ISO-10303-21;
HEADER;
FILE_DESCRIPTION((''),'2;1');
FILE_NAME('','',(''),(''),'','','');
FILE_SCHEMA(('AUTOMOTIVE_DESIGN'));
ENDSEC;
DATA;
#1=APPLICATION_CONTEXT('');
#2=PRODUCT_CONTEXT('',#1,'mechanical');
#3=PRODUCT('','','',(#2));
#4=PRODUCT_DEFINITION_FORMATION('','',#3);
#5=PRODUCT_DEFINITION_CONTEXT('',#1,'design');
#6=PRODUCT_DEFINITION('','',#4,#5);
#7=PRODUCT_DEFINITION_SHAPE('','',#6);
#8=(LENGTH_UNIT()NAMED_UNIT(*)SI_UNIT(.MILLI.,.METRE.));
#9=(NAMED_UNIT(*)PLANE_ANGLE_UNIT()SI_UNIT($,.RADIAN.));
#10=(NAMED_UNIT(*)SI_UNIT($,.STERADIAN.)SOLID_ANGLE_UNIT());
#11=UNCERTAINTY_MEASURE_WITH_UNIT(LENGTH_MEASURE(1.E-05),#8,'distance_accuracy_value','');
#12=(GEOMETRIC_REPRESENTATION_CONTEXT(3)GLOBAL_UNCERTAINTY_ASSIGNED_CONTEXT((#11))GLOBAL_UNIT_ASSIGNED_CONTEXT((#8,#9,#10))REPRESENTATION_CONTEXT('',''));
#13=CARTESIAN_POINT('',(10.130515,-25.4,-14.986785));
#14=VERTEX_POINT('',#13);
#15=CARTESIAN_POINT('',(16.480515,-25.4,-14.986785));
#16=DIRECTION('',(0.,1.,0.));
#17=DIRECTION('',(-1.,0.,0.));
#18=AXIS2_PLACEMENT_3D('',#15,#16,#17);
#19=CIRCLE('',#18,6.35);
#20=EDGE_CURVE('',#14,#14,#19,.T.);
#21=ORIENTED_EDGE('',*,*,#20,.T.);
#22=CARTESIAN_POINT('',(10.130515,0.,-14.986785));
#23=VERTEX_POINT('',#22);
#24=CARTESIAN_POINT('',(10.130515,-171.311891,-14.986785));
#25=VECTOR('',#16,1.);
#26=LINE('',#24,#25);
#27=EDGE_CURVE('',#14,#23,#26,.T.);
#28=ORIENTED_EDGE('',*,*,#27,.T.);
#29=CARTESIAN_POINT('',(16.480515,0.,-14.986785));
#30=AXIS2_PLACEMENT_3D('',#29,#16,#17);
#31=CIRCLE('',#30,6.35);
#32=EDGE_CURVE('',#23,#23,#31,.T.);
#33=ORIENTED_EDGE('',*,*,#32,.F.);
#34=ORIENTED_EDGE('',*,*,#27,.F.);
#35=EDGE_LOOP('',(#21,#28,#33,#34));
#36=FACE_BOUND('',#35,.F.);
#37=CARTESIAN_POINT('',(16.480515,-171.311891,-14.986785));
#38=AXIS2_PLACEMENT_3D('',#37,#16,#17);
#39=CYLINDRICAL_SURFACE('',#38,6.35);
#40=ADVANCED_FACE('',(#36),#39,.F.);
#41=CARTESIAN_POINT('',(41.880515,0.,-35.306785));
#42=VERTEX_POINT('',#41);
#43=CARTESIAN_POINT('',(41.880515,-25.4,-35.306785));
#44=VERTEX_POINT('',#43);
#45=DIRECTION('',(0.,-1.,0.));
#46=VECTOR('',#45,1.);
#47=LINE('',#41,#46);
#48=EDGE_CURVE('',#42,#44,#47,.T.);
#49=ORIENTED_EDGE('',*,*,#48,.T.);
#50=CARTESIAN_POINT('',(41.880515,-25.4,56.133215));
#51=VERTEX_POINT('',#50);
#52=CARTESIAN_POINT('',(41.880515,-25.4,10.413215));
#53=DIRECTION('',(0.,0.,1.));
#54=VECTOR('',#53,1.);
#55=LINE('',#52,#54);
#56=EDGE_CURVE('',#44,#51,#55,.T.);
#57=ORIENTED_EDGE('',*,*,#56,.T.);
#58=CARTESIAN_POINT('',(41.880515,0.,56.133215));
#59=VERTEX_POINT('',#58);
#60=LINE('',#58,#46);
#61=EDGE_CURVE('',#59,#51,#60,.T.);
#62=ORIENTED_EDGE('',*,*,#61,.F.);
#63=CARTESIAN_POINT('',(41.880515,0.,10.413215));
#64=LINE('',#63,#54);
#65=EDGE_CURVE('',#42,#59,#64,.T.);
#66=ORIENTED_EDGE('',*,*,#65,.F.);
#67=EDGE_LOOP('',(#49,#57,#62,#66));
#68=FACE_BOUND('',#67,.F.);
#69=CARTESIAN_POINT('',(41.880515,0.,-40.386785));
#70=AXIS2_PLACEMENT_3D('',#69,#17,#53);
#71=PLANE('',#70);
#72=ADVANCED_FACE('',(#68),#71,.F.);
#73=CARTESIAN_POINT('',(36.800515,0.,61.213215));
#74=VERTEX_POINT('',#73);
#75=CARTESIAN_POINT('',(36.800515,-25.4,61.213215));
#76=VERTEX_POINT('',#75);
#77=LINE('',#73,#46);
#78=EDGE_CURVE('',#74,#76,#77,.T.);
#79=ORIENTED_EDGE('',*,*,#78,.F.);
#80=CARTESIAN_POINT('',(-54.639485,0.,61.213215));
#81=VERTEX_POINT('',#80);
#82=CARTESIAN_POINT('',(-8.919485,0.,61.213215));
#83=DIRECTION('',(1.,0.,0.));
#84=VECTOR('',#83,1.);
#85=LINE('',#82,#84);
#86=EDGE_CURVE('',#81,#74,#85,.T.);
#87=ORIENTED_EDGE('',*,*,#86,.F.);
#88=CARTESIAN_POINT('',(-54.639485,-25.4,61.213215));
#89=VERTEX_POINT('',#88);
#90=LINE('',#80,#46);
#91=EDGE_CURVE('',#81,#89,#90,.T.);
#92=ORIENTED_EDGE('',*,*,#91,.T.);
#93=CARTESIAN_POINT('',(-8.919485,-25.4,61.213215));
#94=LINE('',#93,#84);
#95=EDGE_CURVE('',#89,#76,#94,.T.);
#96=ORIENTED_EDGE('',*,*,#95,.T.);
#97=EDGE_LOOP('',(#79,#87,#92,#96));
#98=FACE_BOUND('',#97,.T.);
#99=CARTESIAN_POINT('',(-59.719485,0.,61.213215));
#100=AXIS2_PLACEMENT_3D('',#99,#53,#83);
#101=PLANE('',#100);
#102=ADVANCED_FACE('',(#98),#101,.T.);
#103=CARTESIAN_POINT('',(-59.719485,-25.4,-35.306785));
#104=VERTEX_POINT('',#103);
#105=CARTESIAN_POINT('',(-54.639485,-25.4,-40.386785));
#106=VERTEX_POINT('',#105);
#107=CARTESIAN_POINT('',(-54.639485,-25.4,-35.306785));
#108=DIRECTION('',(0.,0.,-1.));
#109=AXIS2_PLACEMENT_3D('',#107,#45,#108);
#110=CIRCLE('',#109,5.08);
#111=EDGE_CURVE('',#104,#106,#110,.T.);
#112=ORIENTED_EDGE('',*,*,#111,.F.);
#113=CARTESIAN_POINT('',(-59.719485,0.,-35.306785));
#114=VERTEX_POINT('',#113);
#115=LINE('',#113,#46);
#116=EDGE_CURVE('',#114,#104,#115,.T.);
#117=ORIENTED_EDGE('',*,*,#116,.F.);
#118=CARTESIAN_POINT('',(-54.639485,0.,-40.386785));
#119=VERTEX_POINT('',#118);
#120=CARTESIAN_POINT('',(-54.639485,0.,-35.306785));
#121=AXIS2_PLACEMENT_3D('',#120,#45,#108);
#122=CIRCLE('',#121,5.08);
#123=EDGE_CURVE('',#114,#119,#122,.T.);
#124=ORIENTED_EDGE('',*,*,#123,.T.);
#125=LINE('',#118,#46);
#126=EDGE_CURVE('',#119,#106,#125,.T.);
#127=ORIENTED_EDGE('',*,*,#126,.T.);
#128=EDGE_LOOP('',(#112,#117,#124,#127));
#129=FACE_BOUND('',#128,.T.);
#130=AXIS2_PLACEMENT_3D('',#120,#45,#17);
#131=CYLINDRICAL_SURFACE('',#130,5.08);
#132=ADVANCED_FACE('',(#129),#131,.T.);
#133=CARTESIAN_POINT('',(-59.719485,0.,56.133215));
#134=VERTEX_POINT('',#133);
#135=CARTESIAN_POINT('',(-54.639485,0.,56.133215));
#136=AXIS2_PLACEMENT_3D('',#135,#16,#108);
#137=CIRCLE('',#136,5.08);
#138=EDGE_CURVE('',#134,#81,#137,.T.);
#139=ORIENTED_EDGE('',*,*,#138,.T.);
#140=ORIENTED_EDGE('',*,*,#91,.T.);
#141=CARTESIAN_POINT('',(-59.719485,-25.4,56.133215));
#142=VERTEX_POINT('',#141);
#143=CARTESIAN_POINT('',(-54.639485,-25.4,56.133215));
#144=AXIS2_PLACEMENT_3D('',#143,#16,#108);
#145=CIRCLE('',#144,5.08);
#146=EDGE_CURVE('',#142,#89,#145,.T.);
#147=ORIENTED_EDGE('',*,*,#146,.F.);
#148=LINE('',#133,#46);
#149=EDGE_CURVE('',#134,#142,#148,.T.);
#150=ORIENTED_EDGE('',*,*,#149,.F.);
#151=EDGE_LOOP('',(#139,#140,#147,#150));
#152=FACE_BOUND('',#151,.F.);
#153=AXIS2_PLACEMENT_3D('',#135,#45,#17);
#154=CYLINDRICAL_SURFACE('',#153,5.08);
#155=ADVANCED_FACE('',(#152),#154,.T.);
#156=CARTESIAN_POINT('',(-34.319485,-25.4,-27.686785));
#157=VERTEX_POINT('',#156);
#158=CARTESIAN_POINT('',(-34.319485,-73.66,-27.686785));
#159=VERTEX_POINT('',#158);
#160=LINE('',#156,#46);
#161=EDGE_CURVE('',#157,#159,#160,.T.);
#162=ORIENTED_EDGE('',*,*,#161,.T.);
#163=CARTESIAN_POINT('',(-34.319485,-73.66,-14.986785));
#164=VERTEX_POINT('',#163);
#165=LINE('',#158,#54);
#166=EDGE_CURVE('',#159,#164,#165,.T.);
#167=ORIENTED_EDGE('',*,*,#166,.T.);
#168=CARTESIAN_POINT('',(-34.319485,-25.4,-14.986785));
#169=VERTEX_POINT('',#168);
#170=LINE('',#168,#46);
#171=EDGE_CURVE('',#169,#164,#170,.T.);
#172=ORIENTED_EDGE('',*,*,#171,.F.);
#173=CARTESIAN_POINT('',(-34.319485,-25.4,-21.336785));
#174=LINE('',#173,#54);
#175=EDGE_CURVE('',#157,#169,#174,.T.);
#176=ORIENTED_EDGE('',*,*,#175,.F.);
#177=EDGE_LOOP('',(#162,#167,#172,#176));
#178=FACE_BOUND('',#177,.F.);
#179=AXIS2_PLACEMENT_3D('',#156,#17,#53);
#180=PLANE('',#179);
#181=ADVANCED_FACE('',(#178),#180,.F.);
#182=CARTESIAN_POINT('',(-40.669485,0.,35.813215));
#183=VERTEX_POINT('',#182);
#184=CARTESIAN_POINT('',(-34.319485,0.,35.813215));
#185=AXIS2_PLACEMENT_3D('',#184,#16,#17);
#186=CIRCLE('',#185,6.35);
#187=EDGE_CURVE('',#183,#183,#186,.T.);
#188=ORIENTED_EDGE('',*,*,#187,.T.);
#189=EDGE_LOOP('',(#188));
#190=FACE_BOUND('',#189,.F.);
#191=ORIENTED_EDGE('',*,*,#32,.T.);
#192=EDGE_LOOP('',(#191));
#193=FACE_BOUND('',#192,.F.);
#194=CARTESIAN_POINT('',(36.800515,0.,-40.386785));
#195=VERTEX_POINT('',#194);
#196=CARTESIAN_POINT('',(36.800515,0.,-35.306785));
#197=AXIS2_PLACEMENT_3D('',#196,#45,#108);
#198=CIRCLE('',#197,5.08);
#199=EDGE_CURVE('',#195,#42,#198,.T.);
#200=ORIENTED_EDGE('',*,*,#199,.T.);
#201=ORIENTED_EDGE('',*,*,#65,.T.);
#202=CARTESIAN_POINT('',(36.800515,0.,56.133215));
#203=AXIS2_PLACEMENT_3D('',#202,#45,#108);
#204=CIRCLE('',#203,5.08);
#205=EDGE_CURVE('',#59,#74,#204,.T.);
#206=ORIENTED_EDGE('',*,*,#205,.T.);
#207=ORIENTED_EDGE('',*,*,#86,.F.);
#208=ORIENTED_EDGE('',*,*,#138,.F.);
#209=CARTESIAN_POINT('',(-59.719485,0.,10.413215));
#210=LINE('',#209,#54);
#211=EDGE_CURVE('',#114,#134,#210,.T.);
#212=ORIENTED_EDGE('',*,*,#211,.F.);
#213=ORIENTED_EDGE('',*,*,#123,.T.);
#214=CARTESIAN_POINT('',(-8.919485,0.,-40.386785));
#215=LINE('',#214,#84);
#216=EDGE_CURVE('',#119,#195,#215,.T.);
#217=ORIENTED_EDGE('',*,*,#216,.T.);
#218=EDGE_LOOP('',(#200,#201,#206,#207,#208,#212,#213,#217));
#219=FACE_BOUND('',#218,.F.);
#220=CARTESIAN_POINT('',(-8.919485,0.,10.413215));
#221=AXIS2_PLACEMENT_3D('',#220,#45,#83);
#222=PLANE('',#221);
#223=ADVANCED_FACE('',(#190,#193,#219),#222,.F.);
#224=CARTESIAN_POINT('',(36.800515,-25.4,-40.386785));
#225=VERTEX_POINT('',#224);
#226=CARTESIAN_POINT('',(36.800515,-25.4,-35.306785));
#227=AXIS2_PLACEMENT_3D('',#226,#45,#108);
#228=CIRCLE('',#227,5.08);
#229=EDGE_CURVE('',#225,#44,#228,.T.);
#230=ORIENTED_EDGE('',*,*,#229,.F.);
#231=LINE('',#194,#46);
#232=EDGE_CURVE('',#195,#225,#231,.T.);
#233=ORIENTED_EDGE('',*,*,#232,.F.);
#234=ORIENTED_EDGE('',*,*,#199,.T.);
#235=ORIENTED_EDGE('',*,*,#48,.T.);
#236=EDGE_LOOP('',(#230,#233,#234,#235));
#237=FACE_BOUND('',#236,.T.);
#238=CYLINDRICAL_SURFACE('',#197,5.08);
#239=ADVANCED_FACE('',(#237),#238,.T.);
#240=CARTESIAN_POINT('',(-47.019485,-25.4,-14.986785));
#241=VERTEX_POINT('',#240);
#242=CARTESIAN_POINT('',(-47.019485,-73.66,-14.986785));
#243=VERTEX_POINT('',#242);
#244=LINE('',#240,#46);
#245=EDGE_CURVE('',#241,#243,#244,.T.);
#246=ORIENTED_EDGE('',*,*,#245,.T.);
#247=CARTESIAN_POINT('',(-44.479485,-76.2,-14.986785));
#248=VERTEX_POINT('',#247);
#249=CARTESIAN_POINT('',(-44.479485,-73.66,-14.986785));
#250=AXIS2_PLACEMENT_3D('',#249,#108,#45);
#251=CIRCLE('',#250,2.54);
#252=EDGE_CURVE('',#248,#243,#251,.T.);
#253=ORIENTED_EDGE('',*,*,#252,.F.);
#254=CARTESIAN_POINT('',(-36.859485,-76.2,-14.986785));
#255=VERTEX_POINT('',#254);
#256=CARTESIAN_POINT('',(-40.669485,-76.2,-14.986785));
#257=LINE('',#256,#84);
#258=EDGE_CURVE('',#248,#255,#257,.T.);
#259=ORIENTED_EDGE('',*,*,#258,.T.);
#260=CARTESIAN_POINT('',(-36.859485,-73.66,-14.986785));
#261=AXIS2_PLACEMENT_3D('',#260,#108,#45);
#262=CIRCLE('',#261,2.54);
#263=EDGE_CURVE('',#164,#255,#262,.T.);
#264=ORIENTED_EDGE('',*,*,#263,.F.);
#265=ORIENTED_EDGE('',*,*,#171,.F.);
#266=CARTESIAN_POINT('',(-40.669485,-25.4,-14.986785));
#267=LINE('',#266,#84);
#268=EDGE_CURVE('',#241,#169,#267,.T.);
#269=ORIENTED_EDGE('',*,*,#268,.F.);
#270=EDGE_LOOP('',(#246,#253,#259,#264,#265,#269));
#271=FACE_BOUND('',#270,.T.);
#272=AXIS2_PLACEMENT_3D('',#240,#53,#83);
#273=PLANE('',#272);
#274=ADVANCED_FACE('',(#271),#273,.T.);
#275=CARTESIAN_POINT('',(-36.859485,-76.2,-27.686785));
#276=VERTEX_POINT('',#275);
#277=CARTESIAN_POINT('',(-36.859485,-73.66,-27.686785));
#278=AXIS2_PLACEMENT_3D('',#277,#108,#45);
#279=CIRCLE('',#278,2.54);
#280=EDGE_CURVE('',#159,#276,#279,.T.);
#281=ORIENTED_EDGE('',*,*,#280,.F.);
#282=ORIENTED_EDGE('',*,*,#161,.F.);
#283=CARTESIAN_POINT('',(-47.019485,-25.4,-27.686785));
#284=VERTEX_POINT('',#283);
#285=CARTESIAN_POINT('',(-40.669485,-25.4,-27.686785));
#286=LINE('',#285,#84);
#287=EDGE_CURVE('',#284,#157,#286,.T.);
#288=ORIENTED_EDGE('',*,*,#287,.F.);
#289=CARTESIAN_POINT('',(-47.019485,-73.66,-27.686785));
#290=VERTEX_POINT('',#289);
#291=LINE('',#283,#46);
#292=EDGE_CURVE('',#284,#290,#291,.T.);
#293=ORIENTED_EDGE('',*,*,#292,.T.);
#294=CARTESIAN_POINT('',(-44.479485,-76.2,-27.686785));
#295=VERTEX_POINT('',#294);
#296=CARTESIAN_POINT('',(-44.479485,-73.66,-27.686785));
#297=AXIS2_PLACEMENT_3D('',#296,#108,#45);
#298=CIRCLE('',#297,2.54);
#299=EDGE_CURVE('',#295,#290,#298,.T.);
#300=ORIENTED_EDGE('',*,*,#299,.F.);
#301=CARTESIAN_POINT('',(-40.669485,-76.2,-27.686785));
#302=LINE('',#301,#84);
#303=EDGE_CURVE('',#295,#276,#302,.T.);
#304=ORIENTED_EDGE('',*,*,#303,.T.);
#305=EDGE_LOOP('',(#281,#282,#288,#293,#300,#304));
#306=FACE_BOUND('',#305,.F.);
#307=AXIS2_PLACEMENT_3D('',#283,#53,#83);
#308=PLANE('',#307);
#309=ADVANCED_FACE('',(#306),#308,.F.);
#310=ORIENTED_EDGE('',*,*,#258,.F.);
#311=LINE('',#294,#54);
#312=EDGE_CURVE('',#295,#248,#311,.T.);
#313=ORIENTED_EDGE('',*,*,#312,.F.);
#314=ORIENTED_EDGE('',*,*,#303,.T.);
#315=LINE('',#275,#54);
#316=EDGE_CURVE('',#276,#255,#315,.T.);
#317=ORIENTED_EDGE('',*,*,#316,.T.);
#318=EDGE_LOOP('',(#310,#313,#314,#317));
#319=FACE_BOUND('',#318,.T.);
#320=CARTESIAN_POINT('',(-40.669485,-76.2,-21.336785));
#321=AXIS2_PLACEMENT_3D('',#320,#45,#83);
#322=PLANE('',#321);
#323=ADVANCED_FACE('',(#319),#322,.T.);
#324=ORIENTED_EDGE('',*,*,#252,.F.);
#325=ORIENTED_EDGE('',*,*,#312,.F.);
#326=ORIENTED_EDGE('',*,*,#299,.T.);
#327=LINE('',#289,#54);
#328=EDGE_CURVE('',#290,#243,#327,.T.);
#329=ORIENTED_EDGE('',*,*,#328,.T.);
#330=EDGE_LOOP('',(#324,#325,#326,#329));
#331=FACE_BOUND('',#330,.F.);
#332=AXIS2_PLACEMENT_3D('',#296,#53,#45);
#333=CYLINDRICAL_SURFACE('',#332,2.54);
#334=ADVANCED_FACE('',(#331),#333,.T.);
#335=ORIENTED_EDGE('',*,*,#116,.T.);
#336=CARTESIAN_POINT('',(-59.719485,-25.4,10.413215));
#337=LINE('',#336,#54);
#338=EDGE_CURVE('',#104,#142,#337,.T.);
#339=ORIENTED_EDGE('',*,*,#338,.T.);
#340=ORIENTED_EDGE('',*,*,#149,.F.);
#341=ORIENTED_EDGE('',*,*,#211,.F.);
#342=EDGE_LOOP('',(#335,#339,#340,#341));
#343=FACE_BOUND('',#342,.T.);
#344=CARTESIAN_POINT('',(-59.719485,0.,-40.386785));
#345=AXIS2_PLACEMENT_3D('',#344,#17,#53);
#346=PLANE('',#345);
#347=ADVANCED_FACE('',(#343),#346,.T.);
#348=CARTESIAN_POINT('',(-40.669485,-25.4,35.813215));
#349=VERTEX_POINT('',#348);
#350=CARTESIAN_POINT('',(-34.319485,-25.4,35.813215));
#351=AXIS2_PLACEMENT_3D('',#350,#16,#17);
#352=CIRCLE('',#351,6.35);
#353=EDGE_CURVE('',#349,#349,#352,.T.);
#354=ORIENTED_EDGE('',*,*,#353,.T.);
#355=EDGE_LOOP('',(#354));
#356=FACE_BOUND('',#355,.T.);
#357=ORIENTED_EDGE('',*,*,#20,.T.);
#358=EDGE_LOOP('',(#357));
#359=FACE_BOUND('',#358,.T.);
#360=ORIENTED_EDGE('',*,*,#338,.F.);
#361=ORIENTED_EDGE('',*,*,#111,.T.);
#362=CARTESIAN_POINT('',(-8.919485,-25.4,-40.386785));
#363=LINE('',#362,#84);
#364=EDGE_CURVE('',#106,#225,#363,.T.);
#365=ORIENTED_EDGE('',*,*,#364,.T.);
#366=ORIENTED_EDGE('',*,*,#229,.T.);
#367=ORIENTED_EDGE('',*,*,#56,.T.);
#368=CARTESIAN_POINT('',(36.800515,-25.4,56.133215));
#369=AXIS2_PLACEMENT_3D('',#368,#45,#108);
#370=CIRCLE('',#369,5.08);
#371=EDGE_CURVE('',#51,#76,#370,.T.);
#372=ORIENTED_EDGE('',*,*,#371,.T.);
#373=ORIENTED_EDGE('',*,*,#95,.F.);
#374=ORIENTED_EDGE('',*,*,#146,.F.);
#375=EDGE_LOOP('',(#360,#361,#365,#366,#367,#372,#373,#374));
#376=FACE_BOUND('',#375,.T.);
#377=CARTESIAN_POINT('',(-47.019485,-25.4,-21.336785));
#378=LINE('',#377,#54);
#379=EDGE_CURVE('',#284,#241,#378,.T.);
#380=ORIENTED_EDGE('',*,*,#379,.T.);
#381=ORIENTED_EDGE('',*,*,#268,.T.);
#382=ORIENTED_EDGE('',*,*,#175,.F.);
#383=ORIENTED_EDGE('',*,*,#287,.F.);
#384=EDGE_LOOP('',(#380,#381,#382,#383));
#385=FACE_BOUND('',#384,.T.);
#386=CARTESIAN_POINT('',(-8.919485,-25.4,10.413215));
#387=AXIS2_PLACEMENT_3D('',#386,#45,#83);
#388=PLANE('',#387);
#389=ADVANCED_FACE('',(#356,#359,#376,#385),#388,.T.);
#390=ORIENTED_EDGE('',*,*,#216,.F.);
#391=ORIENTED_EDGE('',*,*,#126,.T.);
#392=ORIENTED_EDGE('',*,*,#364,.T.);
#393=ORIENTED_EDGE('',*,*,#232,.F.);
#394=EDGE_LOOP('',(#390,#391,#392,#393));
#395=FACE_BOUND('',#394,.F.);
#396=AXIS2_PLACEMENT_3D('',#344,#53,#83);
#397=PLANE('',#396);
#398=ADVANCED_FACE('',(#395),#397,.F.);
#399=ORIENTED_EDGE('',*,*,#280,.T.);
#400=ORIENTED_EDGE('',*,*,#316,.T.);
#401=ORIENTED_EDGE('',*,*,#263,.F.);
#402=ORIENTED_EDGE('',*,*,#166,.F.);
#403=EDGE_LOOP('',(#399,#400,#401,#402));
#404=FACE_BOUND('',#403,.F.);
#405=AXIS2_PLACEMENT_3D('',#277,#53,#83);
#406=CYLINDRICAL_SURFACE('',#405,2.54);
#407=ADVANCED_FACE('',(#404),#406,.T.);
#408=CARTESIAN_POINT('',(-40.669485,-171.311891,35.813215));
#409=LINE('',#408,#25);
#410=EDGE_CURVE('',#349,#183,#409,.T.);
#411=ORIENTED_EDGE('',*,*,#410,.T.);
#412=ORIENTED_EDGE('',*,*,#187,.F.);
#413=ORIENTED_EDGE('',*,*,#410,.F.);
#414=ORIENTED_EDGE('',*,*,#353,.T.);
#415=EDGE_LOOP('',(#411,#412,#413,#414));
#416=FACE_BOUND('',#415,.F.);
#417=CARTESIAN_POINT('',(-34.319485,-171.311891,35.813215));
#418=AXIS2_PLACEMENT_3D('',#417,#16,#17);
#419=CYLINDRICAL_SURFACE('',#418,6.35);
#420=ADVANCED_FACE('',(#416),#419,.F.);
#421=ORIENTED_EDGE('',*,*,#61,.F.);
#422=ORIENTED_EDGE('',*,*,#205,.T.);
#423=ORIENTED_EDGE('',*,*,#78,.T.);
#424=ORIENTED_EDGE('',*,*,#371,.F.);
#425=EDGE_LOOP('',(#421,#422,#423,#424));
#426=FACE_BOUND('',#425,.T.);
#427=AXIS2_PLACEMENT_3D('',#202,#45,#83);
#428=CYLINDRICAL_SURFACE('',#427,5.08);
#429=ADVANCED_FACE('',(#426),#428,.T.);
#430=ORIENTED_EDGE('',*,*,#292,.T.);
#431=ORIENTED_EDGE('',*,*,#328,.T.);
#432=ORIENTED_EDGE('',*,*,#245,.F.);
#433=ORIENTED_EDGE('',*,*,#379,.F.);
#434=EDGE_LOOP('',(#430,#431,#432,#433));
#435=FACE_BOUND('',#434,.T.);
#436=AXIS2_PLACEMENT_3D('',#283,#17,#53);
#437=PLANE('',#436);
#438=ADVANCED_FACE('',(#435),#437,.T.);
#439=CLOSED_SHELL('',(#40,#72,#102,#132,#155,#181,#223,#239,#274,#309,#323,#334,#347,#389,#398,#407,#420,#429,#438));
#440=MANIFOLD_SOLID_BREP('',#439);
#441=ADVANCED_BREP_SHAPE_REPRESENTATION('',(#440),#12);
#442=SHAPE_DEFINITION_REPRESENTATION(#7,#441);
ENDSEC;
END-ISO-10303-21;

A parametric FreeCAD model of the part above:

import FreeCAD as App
import Part
import Sketcher
Q = App.Units.Quantity


def edges_at(feature, points):
    """Names of the edges that pass closest to the given points."""
    edges = feature.Shape.Edges
    near = lambda p: min(range(len(edges)), key=lambda i: edges[i].distToShape(Part.Vertex(*p))[0])
    return sorted({f"Edge{near(p) + 1}" for p in points})


def add_polygon(sketch, points):
    """Adds a closed chain of lines whose ends are joined by coincident constraints."""
    first, n = sketch.GeometryCount, len(points)
    for a, b in zip(points, points[1:] + points[:1]):
        sketch.addGeometry(Part.LineSegment(App.Vector(*a, 0), App.Vector(*b, 0)), False)
    for i in range(n):
        sketch.addConstraint(Sketcher.Constraint("Coincident", first + i, 2, first + (i + 1) % n, 1))

doc = App.newDocument("Part")
body = doc.addObject("PartDesign::Body", "Body")

sketch1 = body.newObject("Sketcher::SketchObject", "Sketch")
sketch1.AttachmentSupport = (doc.getObject("XZ_Plane"), [""])
sketch1.MapMode = "FlatFace"
add_polygon(sketch1, [(-59.719485, 61.213215), (-59.719485, -40.386785), (41.880515, -40.386785), (41.880515, 61.213215)])
sketch1.addConstraint([
    Sketcher.Constraint("Vertical", 0),
    Sketcher.Constraint("Horizontal", 1),
    Sketcher.Constraint("Vertical", 2),
    Sketcher.Constraint("Horizontal", 3),
    Sketcher.Constraint("Equal", 3, 0),
    Sketcher.Constraint("DistanceX", 1, 1, 1, 2, Q("4 in")),
    Sketcher.Constraint("DistanceX", 0, 2, -1, 1, 59.719485),
    Sketcher.Constraint("DistanceY", 0, 2, -1, 1, 40.386785),
])
pad1 = body.newObject("PartDesign::Pad", "Pad")
pad1.Profile = sketch1
pad1.Length = Q("1 in")
doc.recompute()

fillet = body.newObject("PartDesign::Fillet", "Fillet")
fillet.Base = (pad1, edges_at(pad1, [(-59.719, -12.7, 61.213)]))
fillet.Radius = Q("0.2 in")
doc.recompute()

fillet2 = body.newObject("PartDesign::Fillet", "Fillet001")
fillet2.Base = (fillet, edges_at(fillet, [(-59.719, -12.7, -40.387)]))
fillet2.Radius = Q("0.2 in")
doc.recompute()

fillet3 = body.newObject("PartDesign::Fillet", "Fillet002")
fillet3.Base = (fillet2, edges_at(fillet2, [(41.881, -12.7, -40.387)]))
fillet3.Radius = Q("0.2 in")
doc.recompute()

fillet4 = body.newObject("PartDesign::Fillet", "Fillet003")
fillet4.Base = (fillet3, edges_at(fillet3, [(41.881, -12.7, 61.213)]))
fillet4.Radius = Q("0.2 in")

sketch2 = body.newObject("Sketcher::SketchObject", "Sketch001")
sketch2.AttachmentSupport = (doc.getObject("XZ_Plane"), [""])
sketch2.MapMode = "FlatFace"
sketch2.AttachmentOffset = App.Placement(App.Vector(0, 0, 1 * 25.4), App.Rotation())
sketch2.addGeometry([
    Part.Circle(App.Vector(-34.319485, 35.813215, 0), App.Vector(0, 0, 1), 6.35),
    Part.Circle(App.Vector(16.480515, -14.986785, 0), App.Vector(0, 0, 1), 6.35),
], False)
sketch2.addConstraint([
    Sketcher.Constraint("Equal", 0, 1),
    Sketcher.Constraint("Diameter", 0, Q("0.5 in")),
    Sketcher.Constraint("DistanceX", 0, 3, 1, 3, Q("2 in")),
    Sketcher.Constraint("DistanceY", 1, 3, 0, 3, Q("2 in")),
    Sketcher.Constraint("DistanceX", 0, 3, -1, 1, 34.319485),
    Sketcher.Constraint("DistanceY", -1, 1, 0, 3, 35.813215),
])
doc.recompute()
hole = body.newObject("PartDesign::Hole", "Hole")
hole.Profile = sketch2
hole.ThreadType = "None"
hole.Diameter = Q("0.5 in")
hole.DepthType = "ThroughAll"

sketch3 = body.newObject("Sketcher::SketchObject", "Sketch002")
sketch3.AttachmentSupport = (doc.getObject("XZ_Plane"), [""])
sketch3.MapMode = "FlatFace"
sketch3.AttachmentOffset = App.Placement(App.Vector(0, 0, 1 * 25.4), App.Rotation())
add_polygon(sketch3, [(-47.019485, -14.986785), (-47.019485, -27.686785), (-34.319485, -27.686785), (-34.319485, -14.986785)])
sketch3.addConstraint([
    Sketcher.Constraint("Vertical", 0),
    Sketcher.Constraint("Horizontal", 1),
    Sketcher.Constraint("Vertical", 2),
    Sketcher.Constraint("Horizontal", 3),
    Sketcher.Constraint("Equal", 3, 0),
    Sketcher.Constraint("DistanceX", 1, 1, 1, 2, Q("0.5 in")),
    Sketcher.Constraint("DistanceX", 0, 2, -1, 1, 47.019485),
    Sketcher.Constraint("DistanceY", 0, 2, -1, 1, 27.686785),
])
pad2 = body.newObject("PartDesign::Pad", "Pad001")
pad2.Profile = sketch3
pad2.Length = Q("2 in")
doc.recompute()

fillet5 = body.newObject("PartDesign::Fillet", "Fillet004")
fillet5.Base = (pad2, edges_at(pad2, [(-34.319, -76.2, -21.337)]))
fillet5.Radius = Q("0.1 in")
doc.recompute()

fillet6 = body.newObject("PartDesign::Fillet", "Fillet005")
fillet6.Base = (fillet5, edges_at(fillet5, [(-47.019, -76.2, -21.337)]))
fillet6.Radius = Q("0.1 in")

doc.recompute()
